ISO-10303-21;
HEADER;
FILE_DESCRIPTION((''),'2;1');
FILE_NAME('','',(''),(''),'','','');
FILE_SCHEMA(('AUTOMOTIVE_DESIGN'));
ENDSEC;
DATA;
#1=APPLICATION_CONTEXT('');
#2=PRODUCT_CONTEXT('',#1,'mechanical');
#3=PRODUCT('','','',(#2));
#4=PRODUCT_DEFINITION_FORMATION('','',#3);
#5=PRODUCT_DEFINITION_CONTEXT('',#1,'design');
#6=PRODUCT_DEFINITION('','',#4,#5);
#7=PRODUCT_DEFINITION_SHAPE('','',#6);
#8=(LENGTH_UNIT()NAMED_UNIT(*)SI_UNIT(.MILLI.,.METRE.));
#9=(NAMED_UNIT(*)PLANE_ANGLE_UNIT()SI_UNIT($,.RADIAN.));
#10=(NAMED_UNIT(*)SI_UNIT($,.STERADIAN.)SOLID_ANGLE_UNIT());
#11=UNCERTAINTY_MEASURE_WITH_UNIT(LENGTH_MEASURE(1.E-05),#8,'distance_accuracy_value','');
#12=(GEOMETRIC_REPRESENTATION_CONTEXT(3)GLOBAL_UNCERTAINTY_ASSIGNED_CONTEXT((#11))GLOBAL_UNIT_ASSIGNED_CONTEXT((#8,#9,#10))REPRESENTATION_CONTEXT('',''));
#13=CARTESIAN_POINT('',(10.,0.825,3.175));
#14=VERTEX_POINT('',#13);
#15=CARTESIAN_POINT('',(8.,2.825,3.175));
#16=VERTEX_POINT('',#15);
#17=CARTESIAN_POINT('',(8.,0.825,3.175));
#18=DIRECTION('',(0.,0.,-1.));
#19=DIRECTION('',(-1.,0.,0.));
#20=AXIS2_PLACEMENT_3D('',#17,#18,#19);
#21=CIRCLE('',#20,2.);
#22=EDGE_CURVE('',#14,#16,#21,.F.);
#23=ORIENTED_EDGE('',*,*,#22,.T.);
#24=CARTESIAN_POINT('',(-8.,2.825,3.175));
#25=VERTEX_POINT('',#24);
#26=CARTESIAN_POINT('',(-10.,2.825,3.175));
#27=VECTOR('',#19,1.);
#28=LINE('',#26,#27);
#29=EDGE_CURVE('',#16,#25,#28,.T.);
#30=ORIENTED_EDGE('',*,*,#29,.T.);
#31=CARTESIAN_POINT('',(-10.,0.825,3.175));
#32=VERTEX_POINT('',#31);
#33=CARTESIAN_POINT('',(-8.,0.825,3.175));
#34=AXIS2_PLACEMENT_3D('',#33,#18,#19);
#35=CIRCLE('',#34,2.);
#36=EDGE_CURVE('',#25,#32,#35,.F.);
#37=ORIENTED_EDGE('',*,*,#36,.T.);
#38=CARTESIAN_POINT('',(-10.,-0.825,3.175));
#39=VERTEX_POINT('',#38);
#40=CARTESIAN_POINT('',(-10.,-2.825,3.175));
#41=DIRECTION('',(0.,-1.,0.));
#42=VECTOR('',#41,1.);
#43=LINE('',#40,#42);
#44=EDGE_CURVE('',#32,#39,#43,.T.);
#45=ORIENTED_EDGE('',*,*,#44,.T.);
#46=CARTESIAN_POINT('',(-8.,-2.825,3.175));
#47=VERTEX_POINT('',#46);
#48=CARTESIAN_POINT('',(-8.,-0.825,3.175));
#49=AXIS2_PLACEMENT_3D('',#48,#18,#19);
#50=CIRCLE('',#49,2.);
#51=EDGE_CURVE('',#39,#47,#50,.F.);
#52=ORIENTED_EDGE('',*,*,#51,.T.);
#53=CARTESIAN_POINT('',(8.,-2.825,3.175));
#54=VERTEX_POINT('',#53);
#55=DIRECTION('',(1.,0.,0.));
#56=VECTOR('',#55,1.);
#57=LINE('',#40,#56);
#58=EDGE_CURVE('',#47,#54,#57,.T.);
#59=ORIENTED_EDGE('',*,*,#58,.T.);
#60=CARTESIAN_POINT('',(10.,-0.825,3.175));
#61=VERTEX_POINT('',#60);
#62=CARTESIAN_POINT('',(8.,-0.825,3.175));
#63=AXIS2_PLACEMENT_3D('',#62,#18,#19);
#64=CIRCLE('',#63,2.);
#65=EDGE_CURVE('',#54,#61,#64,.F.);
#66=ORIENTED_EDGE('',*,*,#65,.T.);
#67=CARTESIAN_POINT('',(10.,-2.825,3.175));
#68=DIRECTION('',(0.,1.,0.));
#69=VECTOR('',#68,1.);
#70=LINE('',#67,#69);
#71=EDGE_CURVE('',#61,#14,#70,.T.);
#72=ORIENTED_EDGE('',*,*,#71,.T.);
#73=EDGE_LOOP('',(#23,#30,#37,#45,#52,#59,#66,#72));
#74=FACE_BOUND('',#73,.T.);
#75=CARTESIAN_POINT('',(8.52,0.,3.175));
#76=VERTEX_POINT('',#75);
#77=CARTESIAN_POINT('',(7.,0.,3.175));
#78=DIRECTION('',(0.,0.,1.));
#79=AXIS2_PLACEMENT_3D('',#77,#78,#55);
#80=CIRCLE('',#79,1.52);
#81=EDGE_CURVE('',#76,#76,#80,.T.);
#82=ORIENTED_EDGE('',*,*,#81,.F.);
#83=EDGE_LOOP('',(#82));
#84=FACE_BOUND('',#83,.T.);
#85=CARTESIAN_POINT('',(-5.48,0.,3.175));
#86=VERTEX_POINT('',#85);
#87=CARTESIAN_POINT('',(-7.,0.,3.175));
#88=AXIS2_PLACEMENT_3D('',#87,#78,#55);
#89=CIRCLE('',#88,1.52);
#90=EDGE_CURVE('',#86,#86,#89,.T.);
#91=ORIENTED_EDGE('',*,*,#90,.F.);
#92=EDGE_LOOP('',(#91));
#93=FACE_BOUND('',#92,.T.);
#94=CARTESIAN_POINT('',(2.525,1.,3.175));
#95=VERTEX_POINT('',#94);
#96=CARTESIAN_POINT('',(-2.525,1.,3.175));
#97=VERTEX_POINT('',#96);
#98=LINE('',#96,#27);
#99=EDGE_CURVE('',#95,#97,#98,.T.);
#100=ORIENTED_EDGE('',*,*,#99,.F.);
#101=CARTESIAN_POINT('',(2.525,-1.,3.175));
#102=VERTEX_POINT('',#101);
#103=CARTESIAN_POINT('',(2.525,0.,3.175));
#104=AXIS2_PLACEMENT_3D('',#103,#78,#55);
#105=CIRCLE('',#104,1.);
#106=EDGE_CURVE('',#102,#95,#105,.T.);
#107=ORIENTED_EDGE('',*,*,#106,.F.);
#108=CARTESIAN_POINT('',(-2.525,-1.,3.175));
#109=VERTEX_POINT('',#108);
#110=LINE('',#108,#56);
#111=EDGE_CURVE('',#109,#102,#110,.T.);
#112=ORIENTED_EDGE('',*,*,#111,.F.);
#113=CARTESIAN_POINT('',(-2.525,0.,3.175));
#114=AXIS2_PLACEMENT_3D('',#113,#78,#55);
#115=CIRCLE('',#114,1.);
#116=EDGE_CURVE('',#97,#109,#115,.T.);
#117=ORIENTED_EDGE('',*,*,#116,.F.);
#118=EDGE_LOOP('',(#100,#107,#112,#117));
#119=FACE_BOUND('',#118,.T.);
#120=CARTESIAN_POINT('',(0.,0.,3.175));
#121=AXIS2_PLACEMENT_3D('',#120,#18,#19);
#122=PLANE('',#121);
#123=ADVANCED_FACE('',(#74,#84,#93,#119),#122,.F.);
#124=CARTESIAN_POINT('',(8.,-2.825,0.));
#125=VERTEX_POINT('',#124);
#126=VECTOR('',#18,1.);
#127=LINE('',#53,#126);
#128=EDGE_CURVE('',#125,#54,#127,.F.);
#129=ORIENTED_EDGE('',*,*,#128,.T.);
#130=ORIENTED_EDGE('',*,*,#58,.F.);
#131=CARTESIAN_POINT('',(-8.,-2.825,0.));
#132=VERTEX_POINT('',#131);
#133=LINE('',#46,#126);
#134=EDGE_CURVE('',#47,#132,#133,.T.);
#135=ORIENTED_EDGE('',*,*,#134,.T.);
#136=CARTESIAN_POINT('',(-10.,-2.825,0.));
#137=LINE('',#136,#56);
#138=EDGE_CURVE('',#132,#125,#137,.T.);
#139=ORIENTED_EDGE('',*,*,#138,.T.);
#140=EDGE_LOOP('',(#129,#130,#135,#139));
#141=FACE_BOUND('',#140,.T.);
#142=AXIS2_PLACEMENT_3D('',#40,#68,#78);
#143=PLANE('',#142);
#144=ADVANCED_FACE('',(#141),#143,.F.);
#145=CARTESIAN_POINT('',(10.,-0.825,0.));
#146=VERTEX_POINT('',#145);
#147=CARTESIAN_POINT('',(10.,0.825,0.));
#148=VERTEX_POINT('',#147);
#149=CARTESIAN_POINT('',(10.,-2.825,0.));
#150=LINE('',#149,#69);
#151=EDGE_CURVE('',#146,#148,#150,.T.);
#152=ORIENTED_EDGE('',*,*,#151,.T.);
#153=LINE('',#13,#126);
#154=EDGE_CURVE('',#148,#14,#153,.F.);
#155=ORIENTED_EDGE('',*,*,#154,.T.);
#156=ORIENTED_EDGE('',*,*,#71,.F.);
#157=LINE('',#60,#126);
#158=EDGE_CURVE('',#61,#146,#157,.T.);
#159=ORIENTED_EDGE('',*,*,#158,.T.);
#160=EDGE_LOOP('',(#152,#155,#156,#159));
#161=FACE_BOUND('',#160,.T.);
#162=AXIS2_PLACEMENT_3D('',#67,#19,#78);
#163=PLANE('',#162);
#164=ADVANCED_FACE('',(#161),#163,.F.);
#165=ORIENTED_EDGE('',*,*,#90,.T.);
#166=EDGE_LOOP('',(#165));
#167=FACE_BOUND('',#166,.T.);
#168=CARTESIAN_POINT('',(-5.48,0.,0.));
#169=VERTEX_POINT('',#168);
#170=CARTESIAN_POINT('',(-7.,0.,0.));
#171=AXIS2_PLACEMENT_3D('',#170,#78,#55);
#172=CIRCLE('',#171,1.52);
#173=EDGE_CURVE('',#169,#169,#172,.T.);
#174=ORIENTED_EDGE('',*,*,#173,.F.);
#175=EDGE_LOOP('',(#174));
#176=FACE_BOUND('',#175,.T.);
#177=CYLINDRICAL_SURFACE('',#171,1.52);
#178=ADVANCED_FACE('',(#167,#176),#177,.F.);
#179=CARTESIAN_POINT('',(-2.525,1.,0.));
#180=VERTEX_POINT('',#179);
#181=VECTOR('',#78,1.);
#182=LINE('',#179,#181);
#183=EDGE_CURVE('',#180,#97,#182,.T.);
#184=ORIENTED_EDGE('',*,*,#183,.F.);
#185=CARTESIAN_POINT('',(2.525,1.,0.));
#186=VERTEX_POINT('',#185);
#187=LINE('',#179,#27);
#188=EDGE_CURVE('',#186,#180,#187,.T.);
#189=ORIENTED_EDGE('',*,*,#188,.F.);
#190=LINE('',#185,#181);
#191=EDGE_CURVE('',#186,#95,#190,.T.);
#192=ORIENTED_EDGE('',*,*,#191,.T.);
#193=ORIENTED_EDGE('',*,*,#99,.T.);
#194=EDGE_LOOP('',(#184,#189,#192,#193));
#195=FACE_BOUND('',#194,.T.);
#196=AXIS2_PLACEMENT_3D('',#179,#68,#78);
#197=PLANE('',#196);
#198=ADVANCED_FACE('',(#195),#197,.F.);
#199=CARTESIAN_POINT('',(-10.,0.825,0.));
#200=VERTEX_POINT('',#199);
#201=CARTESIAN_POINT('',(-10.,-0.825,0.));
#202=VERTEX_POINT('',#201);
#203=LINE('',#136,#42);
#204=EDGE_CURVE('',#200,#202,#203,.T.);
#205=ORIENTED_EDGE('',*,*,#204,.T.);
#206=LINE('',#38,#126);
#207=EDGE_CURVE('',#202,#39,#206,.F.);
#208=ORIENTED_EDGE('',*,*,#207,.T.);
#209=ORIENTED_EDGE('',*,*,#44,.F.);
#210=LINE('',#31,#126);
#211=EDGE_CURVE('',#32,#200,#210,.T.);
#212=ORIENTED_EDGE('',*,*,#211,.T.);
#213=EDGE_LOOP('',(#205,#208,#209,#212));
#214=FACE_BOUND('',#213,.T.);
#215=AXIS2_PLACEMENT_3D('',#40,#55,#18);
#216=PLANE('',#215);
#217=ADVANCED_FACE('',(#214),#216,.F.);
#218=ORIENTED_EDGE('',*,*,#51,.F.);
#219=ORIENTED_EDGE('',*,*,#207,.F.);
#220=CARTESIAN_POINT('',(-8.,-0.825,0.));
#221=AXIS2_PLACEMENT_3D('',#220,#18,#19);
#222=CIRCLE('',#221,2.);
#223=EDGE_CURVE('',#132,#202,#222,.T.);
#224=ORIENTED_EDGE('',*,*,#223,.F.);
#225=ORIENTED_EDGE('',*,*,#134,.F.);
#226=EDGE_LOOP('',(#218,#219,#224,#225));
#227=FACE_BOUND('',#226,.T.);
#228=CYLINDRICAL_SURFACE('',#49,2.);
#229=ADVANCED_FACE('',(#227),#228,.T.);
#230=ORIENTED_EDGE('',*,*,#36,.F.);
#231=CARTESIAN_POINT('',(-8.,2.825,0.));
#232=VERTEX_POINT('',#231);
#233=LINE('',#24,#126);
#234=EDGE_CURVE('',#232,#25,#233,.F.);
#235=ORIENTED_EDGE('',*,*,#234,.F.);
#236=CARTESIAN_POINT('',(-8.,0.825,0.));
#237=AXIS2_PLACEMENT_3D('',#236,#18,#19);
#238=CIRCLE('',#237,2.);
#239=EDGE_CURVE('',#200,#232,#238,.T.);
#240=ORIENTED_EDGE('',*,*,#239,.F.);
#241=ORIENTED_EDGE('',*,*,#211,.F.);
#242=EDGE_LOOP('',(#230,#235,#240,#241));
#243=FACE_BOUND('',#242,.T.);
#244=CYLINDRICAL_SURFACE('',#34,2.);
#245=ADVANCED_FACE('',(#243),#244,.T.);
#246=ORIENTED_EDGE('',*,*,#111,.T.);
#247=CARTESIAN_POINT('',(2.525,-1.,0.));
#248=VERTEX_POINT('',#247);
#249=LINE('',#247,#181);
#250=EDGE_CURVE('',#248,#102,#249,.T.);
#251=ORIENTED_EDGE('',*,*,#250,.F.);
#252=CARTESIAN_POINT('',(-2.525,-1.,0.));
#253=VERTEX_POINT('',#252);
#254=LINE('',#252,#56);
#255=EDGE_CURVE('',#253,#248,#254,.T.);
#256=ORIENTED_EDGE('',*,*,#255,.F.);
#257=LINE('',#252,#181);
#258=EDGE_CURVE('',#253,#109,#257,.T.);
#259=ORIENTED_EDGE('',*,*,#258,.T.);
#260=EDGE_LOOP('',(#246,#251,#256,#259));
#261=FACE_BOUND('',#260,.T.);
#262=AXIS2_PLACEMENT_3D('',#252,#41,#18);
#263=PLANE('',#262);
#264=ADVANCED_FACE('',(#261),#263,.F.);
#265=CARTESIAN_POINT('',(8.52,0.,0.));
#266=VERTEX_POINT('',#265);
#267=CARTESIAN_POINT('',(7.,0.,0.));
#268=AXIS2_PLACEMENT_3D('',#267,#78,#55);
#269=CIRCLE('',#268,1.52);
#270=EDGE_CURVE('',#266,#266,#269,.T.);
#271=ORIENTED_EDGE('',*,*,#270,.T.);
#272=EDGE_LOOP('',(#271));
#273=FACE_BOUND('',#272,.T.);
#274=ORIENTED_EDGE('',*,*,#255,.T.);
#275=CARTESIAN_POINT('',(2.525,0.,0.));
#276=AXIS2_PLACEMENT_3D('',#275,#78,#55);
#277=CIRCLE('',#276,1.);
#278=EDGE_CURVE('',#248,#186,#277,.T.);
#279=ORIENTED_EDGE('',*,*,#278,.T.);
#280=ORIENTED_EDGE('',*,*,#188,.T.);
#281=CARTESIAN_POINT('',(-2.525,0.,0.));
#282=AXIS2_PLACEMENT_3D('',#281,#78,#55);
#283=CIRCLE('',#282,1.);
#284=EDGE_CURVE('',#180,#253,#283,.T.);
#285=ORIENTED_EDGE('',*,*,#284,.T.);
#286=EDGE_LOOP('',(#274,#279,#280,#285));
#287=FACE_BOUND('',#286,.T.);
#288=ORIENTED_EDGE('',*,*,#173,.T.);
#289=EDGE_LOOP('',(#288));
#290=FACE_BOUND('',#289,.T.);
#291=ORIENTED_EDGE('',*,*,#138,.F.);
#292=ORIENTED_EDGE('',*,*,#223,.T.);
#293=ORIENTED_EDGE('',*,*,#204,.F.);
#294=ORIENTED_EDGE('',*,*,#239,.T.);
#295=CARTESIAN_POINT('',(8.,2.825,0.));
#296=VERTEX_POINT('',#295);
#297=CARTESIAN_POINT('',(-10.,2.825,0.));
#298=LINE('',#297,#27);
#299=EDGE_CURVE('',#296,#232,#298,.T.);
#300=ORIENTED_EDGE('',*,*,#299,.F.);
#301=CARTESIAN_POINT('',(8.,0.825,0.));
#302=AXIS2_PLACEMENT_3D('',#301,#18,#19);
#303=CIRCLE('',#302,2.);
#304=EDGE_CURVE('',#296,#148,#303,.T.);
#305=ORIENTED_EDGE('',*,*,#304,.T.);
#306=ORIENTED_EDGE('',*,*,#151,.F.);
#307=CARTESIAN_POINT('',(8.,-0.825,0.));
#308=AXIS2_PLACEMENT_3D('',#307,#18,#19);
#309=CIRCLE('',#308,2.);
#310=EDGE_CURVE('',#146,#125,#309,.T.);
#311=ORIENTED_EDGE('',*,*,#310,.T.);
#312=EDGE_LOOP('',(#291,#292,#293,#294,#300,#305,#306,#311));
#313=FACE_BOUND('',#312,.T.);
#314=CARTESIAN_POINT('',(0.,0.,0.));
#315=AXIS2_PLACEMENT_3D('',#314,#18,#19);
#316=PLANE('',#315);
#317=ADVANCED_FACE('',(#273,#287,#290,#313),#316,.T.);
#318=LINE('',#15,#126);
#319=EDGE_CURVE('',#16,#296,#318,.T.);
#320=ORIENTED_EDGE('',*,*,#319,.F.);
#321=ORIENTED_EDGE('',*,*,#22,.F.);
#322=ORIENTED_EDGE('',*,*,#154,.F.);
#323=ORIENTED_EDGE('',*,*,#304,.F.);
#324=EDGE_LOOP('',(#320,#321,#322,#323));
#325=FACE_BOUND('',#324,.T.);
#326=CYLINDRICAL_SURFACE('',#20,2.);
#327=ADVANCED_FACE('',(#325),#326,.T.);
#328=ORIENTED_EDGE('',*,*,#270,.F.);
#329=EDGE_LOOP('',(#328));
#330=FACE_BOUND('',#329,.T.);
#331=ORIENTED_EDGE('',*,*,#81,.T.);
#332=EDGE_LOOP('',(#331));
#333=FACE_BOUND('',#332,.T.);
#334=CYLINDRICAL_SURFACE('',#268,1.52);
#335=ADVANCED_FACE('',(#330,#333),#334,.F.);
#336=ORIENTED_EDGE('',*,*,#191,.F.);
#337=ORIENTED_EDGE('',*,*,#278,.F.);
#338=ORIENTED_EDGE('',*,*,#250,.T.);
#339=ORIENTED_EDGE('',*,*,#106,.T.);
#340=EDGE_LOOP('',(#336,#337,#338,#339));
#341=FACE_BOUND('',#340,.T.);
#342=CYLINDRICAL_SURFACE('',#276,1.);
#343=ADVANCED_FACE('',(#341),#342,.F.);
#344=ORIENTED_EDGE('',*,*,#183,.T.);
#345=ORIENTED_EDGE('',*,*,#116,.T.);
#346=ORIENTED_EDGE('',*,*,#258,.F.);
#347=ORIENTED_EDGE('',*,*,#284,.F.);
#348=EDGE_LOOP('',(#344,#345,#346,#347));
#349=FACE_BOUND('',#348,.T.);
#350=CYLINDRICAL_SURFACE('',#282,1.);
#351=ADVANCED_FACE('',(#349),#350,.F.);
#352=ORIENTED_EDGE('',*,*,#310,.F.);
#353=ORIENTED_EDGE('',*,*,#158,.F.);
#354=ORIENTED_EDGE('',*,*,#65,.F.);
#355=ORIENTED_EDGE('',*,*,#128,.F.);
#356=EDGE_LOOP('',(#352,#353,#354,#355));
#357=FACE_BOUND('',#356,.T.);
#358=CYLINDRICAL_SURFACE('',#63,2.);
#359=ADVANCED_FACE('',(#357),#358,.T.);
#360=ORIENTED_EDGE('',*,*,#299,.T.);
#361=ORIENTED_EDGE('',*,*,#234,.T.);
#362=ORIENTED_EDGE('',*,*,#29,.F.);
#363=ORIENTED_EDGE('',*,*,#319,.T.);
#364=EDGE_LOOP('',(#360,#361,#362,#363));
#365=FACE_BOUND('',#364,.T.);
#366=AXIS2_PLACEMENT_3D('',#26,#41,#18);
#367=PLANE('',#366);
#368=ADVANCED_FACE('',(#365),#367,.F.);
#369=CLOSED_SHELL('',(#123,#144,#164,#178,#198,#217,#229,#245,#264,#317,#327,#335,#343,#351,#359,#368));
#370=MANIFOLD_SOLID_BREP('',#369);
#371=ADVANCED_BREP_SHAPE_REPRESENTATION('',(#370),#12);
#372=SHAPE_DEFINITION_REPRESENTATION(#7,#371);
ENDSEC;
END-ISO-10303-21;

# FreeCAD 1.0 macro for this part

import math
import FreeCAD as App
import Part
import Sketcher
from FreeCAD import Vector
Q = App.Units.Quantity


def edges_at(feature, points):
    """Names of the edges that pass closest to the given points."""
    edges = feature.Shape.Edges
    near = lambda p: min(range(len(edges)), key=lambda i: edges[i].distToShape(Part.Vertex(*p))[0])
    return sorted({f"Edge{near(p) + 1}" for p in points})

doc = App.newDocument("Part")
body = doc.addObject("PartDesign::Body", "Body")

# Sketch on XY plane
sketch1 = doc.addObject("Sketcher::SketchObject", "Sketch")
body.addObject(sketch1)
sketch1.AttachmentSupport = (doc.XY_Plane, [""])
sketch1.MapMode = "FlatFace"
sketch1.addGeometry(Part.LineSegment(Vector(-10, 3, 0), Vector(-10, -3, 0)), False)
sketch1.addGeometry(Part.LineSegment(Vector(-10, -3, 0), Vector(10, -3, 0)), False)
sketch1.addGeometry(Part.LineSegment(Vector(10, -3, 0), Vector(10, 3, 0)), False)
sketch1.addGeometry(Part.LineSegment(Vector(10, 3, 0), Vector(-10, 3, 0)), False)
sketch1.addConstraint(Sketcher.Constraint("Coincident", 0, 2, 1, 1))
sketch1.addConstraint(Sketcher.Constraint("Coincident", 1, 2, 2, 1))
sketch1.addConstraint(Sketcher.Constraint("Coincident", 2, 2, 3, 1))
sketch1.addConstraint(Sketcher.Constraint("Coincident", 3, 2, 0, 1))
sketch1.addConstraint(Sketcher.Constraint("Vertical", 0))
sketch1.addConstraint(Sketcher.Constraint("Horizontal", 1))
sketch1.addConstraint(Sketcher.Constraint("Vertical", 2))
sketch1.addConstraint(Sketcher.Constraint("Horizontal", 3))
sketch1.addConstraint(Sketcher.Constraint("Symmetric", 0, 2, 2, 2, -1, 1))
sketch1.addConstraint(Sketcher.Constraint("DistanceX", 1, 1, 1, 2, Q("20 mm")))
sketch1.addConstraint(Sketcher.Constraint("DistanceY", 0, 2, 0, 1, Q("5.65 mm")))
pad1 = doc.addObject("PartDesign::Pad", "Pad")
body.addObject(pad1)
pad1.Profile = sketch1
pad1.Length = 3.175
doc.recompute()

fillet = doc.addObject("PartDesign::Fillet", "Fillet")
body.addObject(fillet)
fillet.Base = (pad1, edges_at(pad1, [
    (10, -2.825, 1.587),
    (-10, -2.825, 1.587),
    (-10, 2.825, 1.587),
    (10, 2.825, 1.587),
]))
fillet.Radius = 2

# Sketch on XY plane
sketch2 = doc.addObject("Sketcher::SketchObject", "Sketch001")
body.addObject(sketch2)
sketch2.AttachmentSupport = (doc.XY_Plane, [""])
sketch2.MapMode = "FlatFace"
sketch2.AttachmentOffset = App.Placement(Vector(0, 0, 3.175), App.Rotation())
sketch2.addGeometry(Part.Circle(Vector(-7, 0, 0), Vector(0, 0, 1), 1.5), False)
sketch2.addGeometry(Part.Circle(Vector(7, 0, 0), Vector(0, 0, 1), 1.5), False)
sketch2.addGeometry(Part.LineSegment(Vector(2.5, 1, 0), Vector(-2.5, 1, 0)), False)
sketch2.addGeometry(Part.ArcOfCircle(Part.Circle(Vector(-2.5, 0, 0), Vector(0, 0, 1), 1), math.radians(90), math.radians(270)), False)
sketch2.addGeometry(Part.LineSegment(Vector(-2.5, -1, 0), Vector(2.5, -1, 0)), False)
sketch2.addGeometry(Part.ArcOfCircle(Part.Circle(Vector(2.5, 0, 0), Vector(0, 0, 1), 1), math.radians(-90), math.radians(90)), False)
sketch2.addConstraint(Sketcher.Constraint("Tangent", 2, 2, 3, 1))
sketch2.addConstraint(Sketcher.Constraint("Tangent", 3, 2, 4, 1))
sketch2.addConstraint(Sketcher.Constraint("Tangent", 4, 2, 5, 1))
sketch2.addConstraint(Sketcher.Constraint("Tangent", 5, 2, 2, 1))
sketch2.addConstraint(Sketcher.Constraint("Horizontal", 2))
sketch2.addConstraint(Sketcher.Constraint("Horizontal", 4))
sketch2.addConstraint(Sketcher.Constraint("Equal", 0, 1))
sketch2.addConstraint(Sketcher.Constraint("Symmetric", 0, 3, 1, 3, -1, 1))
sketch2.addConstraint(Sketcher.Constraint("Symmetric", 3, 3, 5, 3, -1, 1))
sketch2.addConstraint(Sketcher.Constraint("PointOnObject", 0, 3, -1))
sketch2.addConstraint(Sketcher.Constraint("Radius", 3, Q("1 mm")))
sketch2.addConstraint(Sketcher.Constraint("Diameter", 0, Q("3.04 mm")))
sketch2.addConstraint(Sketcher.Constraint("DistanceX", 0, 3, -1, 1, Q("7 mm")))
sketch2.addConstraint(Sketcher.Constraint("DistanceX", 2, 2, 2, 1, Q("5.05 mm")))
pocket1 = doc.addObject("PartDesign::Pocket", "Pocket")
body.addObject(pocket1)
pocket1.Profile = sketch2
pocket1.Length = 3.175

doc.recompute()
